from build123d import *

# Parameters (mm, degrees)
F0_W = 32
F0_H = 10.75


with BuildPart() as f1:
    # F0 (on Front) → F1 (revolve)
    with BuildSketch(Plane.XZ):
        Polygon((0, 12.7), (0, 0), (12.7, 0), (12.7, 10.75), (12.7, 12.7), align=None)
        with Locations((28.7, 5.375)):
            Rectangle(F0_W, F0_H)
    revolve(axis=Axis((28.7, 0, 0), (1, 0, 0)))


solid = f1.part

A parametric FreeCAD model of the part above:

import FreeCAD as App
import Part
import Sketcher
from FreeCAD import Vector

doc = App.newDocument("Part")
body = doc.addObject("PartDesign::Body", "Body")

# Sketch on XZ plane
sketch1 = body.newObject("Sketcher::SketchObject", "Sketch")
sketch1.AttachmentSupport = (doc.getObject("XZ_Plane"), [""])
sketch1.MapMode = "FlatFace"
sketch1.addGeometry([
    Part.LineSegment(Vector(0, 12.7, 0), Vector(0, 0, 0)),  # 0
    Part.LineSegment(Vector(0, 0, 0), Vector(44.7, 0, 0)),  # 1
    Part.LineSegment(Vector(44.7, 0, 0), Vector(44.7, 10.8, 0)),  # 2
    Part.LineSegment(Vector(44.7, 10.8, 0), Vector(12.7, 10.8, 0)),  # 3
    Part.LineSegment(Vector(12.7, 10.8, 0), Vector(12.7, 12.7, 0)),  # 4
    Part.LineSegment(Vector(12.7, 12.7, 0), Vector(0, 12.7, 0)),  # 5
], False)
sketch1.addConstraint([
    Sketcher.Constraint("Coincident", 0, 2, 1, 1),
    Sketcher.Constraint("Coincident", 1, 2, 2, 1),
    Sketcher.Constraint("Coincident", 2, 2, 3, 1),
    Sketcher.Constraint("Coincident", 3, 2, 4, 1),
    Sketcher.Constraint("Coincident", 4, 2, 5, 1),
    Sketcher.Constraint("Coincident", 5, 2, 0, 1),
    Sketcher.Constraint("Vertical", 0),
    Sketcher.Constraint("Horizontal", 1),
    Sketcher.Constraint("Vertical", 2),
    Sketcher.Constraint("Horizontal", 3),
    Sketcher.Constraint("Vertical", 4),
    Sketcher.Constraint("Horizontal", 5),
    Sketcher.Constraint("Coincident", 0, 2, -1, 1),
    Sketcher.Constraint("Equal", 5, 0),
    Sketcher.Constraint("DistanceX", 3, 2, 3, 1, 32.0),
    Sketcher.Constraint("DistanceX", 1, 1, 1, 2, 44.7),
    Sketcher.Constraint("DistanceY", 2, 1, 2, 2, 10.75),
])
revolution = body.newObject("PartDesign::Revolution", "Revolution")
revolution.Profile = sketch1
revolution.ReferenceAxis = (sketch1, ["H_Axis"])
revolution.Angle = 360

doc.recompute()
